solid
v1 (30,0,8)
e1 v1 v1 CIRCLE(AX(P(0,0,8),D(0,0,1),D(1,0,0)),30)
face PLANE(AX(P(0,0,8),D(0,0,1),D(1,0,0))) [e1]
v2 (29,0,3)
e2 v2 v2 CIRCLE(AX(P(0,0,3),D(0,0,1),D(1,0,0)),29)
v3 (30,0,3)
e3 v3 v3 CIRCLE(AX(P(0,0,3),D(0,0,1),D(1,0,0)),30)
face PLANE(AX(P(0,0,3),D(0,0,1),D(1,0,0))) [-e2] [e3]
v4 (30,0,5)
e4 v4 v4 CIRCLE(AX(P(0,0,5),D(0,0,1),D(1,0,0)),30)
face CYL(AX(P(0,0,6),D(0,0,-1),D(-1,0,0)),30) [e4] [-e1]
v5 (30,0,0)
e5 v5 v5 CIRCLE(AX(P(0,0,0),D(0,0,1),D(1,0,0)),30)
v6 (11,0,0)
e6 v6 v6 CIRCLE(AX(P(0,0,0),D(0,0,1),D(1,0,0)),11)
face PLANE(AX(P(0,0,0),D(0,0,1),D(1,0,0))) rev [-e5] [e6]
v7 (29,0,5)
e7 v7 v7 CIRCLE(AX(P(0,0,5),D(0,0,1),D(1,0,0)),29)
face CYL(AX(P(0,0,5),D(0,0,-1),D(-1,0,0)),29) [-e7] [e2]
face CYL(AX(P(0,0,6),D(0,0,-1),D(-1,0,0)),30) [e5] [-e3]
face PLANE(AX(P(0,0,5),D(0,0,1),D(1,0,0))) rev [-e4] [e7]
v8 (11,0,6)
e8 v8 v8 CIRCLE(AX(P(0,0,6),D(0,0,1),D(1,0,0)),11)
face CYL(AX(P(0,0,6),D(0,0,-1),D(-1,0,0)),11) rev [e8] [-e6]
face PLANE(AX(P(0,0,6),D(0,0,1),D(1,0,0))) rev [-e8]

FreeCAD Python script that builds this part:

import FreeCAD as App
import Part
import Sketcher
from FreeCAD import Vector

doc = App.newDocument("Part")
params = doc.addObject("Spreadsheet::Sheet", "Params")
for row, (alias, value) in enumerate([
    ("sketch1_diameter", "60 mm"),
    ("sketch1_diameter2", "22 mm"),
    ("pad1_length", "6 mm"),
    ("sketch2_diameter", "60 mm"),
    ("pad2_length", "2 mm"),
    ("sketch3_diameter", "60 mm"),
    ("sketch3_diameter2", "58 mm"),
    ("pocket1_length", "1 mm"),
    ("pocket1_length2", "1 mm"),
], start=1):
    params.set(f"A{row}", alias)
    params.set(f"B{row}", "=" + value)
    params.setAlias(f"B{row}", alias)

body = doc.addObject("PartDesign::Body", "Body")

sketch1 = doc.addObject("Sketcher::SketchObject", "Sketch")
body.addObject(sketch1)
sketch1.AttachmentSupport = (doc.XY_Plane, [""])
sketch1.MapMode = "FlatFace"
sketch1.addGeometry(Part.Circle(Vector(0, 0, 0), Vector(0, 0, 1), 30), False)
sketch1.addGeometry(Part.Circle(Vector(0, 0, 0), Vector(0, 0, 1), 11), False)
sketch1.addConstraint(Sketcher.Constraint("Coincident", 0, 3, -1, 1))
sketch1.addConstraint(Sketcher.Constraint("Coincident", 1, 3, -1, 1))
sketch1.addConstraint(Sketcher.Constraint("Diameter", 0, 60.0))
sketch1.addConstraint(Sketcher.Constraint("Diameter", 1, 22.0))
sketch1.setExpression("Constraints[2]", "Params.sketch1_diameter")
sketch1.setExpression("Constraints[3]", "Params.sketch1_diameter2")
pad1 = doc.addObject("PartDesign::Pad", "Pad")
body.addObject(pad1)
pad1.Profile = sketch1
pad1.setExpression("Length", "Params.pad1_length")

sketch2 = doc.addObject("Sketcher::SketchObject", "Sketch001")
body.addObject(sketch2)
sketch2.AttachmentSupport = (doc.XY_Plane, [""])
sketch2.MapMode = "FlatFace"
sketch2.AttachmentOffset = App.Placement(Vector(0, 0, 6), App.Rotation())
sketch2.addGeometry(Part.Circle(Vector(0, 0, 0), Vector(0, 0, 1), 30), False)
sketch2.addConstraint(Sketcher.Constraint("Coincident", 0, 3, -1, 1))
sketch2.addConstraint(Sketcher.Constraint("Diameter", 0, 60.0))
sketch2.setExpression("Constraints[1]", "Params.sketch2_diameter")
pad2 = doc.addObject("PartDesign::Pad", "Pad001")
body.addObject(pad2)
pad2.Profile = sketch2
pad2.setExpression("Length", "Params.pad2_length")

sketch3 = doc.addObject("Sketcher::SketchObject", "Sketch002")
body.addObject(sketch3)
sketch3.AttachmentSupport = (doc.XY_Plane, [""])
sketch3.MapMode = "FlatFace"
sketch3.AttachmentOffset = App.Placement(Vector(0, 0, 4), App.Rotation())
sketch3.addGeometry(Part.Circle(Vector(0, 0, 0), Vector(0, 0, 1), 30), False)
sketch3.addGeometry(Part.Circle(Vector(0, 0, 0), Vector(0, 0, 1), 29), False)
sketch3.addConstraint(Sketcher.Constraint("Coincident", 0, 3, -1, 1))
sketch3.addConstraint(Sketcher.Constraint("Coincident", 1, 3, -1, 1))
sketch3.addConstraint(Sketcher.Constraint("Diameter", 0, 60.0))
sketch3.addConstraint(Sketcher.Constraint("Diameter", 1, 58.0))
sketch3.setExpression("Constraints[2]", "Params.sketch3_diameter")
sketch3.setExpression("Constraints[3]", "Params.sketch3_diameter2")
pocket1 = doc.addObject("PartDesign::Pocket", "Pocket")
body.addObject(pocket1)
pocket1.Profile = sketch3
pocket1.Type = "TwoLengths"
pocket1.setExpression("Length", "Params.pocket1_length")
pocket1.setExpression("Length2", "Params.pocket1_length2")
pocket1.Reversed = True

doc.recompute()
